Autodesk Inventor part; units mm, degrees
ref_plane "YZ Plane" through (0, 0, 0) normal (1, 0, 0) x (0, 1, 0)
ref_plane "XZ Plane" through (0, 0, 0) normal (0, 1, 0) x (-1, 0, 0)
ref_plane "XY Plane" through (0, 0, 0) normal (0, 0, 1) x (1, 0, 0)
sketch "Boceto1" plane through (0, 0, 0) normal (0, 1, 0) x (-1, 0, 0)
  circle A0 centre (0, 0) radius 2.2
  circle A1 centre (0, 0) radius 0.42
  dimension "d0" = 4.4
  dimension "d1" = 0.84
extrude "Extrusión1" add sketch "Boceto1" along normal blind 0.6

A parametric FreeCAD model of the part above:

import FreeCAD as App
import Part
import Sketcher
from FreeCAD import Vector
Q = App.Units.Quantity

doc = App.newDocument("Part")
body = doc.addObject("PartDesign::Body", "Body")

sketch1 = doc.addObject("Sketcher::SketchObject", "Sketch")
body.addObject(sketch1)
sketch1.AttachmentSupport = (doc.XZ_Plane, [""])
sketch1.MapMode = "FlatFace"
sketch1.addGeometry([
    Part.Circle(Vector(0, 0, 0), Vector(0, 0, 1), 2.2),
    Part.Circle(Vector(0, 0, 0), Vector(0, 0, 1), 0.42),
], False)
sketch1.addConstraint([
    Sketcher.Constraint("Coincident", 0, 3, -1, 1),
    Sketcher.Constraint("Coincident", 1, 3, -1, 1),
    Sketcher.Constraint("Diameter", 0, Q("4.4 mm")),
    Sketcher.Constraint("Diameter", 1, Q("0.84 mm")),
])
pad1 = doc.addObject("PartDesign::Pad", "Pad")
body.addObject(pad1)
pad1.Profile = sketch1
pad1.Length = 0.6
pad1.Reversed = True

doc.recompute()
